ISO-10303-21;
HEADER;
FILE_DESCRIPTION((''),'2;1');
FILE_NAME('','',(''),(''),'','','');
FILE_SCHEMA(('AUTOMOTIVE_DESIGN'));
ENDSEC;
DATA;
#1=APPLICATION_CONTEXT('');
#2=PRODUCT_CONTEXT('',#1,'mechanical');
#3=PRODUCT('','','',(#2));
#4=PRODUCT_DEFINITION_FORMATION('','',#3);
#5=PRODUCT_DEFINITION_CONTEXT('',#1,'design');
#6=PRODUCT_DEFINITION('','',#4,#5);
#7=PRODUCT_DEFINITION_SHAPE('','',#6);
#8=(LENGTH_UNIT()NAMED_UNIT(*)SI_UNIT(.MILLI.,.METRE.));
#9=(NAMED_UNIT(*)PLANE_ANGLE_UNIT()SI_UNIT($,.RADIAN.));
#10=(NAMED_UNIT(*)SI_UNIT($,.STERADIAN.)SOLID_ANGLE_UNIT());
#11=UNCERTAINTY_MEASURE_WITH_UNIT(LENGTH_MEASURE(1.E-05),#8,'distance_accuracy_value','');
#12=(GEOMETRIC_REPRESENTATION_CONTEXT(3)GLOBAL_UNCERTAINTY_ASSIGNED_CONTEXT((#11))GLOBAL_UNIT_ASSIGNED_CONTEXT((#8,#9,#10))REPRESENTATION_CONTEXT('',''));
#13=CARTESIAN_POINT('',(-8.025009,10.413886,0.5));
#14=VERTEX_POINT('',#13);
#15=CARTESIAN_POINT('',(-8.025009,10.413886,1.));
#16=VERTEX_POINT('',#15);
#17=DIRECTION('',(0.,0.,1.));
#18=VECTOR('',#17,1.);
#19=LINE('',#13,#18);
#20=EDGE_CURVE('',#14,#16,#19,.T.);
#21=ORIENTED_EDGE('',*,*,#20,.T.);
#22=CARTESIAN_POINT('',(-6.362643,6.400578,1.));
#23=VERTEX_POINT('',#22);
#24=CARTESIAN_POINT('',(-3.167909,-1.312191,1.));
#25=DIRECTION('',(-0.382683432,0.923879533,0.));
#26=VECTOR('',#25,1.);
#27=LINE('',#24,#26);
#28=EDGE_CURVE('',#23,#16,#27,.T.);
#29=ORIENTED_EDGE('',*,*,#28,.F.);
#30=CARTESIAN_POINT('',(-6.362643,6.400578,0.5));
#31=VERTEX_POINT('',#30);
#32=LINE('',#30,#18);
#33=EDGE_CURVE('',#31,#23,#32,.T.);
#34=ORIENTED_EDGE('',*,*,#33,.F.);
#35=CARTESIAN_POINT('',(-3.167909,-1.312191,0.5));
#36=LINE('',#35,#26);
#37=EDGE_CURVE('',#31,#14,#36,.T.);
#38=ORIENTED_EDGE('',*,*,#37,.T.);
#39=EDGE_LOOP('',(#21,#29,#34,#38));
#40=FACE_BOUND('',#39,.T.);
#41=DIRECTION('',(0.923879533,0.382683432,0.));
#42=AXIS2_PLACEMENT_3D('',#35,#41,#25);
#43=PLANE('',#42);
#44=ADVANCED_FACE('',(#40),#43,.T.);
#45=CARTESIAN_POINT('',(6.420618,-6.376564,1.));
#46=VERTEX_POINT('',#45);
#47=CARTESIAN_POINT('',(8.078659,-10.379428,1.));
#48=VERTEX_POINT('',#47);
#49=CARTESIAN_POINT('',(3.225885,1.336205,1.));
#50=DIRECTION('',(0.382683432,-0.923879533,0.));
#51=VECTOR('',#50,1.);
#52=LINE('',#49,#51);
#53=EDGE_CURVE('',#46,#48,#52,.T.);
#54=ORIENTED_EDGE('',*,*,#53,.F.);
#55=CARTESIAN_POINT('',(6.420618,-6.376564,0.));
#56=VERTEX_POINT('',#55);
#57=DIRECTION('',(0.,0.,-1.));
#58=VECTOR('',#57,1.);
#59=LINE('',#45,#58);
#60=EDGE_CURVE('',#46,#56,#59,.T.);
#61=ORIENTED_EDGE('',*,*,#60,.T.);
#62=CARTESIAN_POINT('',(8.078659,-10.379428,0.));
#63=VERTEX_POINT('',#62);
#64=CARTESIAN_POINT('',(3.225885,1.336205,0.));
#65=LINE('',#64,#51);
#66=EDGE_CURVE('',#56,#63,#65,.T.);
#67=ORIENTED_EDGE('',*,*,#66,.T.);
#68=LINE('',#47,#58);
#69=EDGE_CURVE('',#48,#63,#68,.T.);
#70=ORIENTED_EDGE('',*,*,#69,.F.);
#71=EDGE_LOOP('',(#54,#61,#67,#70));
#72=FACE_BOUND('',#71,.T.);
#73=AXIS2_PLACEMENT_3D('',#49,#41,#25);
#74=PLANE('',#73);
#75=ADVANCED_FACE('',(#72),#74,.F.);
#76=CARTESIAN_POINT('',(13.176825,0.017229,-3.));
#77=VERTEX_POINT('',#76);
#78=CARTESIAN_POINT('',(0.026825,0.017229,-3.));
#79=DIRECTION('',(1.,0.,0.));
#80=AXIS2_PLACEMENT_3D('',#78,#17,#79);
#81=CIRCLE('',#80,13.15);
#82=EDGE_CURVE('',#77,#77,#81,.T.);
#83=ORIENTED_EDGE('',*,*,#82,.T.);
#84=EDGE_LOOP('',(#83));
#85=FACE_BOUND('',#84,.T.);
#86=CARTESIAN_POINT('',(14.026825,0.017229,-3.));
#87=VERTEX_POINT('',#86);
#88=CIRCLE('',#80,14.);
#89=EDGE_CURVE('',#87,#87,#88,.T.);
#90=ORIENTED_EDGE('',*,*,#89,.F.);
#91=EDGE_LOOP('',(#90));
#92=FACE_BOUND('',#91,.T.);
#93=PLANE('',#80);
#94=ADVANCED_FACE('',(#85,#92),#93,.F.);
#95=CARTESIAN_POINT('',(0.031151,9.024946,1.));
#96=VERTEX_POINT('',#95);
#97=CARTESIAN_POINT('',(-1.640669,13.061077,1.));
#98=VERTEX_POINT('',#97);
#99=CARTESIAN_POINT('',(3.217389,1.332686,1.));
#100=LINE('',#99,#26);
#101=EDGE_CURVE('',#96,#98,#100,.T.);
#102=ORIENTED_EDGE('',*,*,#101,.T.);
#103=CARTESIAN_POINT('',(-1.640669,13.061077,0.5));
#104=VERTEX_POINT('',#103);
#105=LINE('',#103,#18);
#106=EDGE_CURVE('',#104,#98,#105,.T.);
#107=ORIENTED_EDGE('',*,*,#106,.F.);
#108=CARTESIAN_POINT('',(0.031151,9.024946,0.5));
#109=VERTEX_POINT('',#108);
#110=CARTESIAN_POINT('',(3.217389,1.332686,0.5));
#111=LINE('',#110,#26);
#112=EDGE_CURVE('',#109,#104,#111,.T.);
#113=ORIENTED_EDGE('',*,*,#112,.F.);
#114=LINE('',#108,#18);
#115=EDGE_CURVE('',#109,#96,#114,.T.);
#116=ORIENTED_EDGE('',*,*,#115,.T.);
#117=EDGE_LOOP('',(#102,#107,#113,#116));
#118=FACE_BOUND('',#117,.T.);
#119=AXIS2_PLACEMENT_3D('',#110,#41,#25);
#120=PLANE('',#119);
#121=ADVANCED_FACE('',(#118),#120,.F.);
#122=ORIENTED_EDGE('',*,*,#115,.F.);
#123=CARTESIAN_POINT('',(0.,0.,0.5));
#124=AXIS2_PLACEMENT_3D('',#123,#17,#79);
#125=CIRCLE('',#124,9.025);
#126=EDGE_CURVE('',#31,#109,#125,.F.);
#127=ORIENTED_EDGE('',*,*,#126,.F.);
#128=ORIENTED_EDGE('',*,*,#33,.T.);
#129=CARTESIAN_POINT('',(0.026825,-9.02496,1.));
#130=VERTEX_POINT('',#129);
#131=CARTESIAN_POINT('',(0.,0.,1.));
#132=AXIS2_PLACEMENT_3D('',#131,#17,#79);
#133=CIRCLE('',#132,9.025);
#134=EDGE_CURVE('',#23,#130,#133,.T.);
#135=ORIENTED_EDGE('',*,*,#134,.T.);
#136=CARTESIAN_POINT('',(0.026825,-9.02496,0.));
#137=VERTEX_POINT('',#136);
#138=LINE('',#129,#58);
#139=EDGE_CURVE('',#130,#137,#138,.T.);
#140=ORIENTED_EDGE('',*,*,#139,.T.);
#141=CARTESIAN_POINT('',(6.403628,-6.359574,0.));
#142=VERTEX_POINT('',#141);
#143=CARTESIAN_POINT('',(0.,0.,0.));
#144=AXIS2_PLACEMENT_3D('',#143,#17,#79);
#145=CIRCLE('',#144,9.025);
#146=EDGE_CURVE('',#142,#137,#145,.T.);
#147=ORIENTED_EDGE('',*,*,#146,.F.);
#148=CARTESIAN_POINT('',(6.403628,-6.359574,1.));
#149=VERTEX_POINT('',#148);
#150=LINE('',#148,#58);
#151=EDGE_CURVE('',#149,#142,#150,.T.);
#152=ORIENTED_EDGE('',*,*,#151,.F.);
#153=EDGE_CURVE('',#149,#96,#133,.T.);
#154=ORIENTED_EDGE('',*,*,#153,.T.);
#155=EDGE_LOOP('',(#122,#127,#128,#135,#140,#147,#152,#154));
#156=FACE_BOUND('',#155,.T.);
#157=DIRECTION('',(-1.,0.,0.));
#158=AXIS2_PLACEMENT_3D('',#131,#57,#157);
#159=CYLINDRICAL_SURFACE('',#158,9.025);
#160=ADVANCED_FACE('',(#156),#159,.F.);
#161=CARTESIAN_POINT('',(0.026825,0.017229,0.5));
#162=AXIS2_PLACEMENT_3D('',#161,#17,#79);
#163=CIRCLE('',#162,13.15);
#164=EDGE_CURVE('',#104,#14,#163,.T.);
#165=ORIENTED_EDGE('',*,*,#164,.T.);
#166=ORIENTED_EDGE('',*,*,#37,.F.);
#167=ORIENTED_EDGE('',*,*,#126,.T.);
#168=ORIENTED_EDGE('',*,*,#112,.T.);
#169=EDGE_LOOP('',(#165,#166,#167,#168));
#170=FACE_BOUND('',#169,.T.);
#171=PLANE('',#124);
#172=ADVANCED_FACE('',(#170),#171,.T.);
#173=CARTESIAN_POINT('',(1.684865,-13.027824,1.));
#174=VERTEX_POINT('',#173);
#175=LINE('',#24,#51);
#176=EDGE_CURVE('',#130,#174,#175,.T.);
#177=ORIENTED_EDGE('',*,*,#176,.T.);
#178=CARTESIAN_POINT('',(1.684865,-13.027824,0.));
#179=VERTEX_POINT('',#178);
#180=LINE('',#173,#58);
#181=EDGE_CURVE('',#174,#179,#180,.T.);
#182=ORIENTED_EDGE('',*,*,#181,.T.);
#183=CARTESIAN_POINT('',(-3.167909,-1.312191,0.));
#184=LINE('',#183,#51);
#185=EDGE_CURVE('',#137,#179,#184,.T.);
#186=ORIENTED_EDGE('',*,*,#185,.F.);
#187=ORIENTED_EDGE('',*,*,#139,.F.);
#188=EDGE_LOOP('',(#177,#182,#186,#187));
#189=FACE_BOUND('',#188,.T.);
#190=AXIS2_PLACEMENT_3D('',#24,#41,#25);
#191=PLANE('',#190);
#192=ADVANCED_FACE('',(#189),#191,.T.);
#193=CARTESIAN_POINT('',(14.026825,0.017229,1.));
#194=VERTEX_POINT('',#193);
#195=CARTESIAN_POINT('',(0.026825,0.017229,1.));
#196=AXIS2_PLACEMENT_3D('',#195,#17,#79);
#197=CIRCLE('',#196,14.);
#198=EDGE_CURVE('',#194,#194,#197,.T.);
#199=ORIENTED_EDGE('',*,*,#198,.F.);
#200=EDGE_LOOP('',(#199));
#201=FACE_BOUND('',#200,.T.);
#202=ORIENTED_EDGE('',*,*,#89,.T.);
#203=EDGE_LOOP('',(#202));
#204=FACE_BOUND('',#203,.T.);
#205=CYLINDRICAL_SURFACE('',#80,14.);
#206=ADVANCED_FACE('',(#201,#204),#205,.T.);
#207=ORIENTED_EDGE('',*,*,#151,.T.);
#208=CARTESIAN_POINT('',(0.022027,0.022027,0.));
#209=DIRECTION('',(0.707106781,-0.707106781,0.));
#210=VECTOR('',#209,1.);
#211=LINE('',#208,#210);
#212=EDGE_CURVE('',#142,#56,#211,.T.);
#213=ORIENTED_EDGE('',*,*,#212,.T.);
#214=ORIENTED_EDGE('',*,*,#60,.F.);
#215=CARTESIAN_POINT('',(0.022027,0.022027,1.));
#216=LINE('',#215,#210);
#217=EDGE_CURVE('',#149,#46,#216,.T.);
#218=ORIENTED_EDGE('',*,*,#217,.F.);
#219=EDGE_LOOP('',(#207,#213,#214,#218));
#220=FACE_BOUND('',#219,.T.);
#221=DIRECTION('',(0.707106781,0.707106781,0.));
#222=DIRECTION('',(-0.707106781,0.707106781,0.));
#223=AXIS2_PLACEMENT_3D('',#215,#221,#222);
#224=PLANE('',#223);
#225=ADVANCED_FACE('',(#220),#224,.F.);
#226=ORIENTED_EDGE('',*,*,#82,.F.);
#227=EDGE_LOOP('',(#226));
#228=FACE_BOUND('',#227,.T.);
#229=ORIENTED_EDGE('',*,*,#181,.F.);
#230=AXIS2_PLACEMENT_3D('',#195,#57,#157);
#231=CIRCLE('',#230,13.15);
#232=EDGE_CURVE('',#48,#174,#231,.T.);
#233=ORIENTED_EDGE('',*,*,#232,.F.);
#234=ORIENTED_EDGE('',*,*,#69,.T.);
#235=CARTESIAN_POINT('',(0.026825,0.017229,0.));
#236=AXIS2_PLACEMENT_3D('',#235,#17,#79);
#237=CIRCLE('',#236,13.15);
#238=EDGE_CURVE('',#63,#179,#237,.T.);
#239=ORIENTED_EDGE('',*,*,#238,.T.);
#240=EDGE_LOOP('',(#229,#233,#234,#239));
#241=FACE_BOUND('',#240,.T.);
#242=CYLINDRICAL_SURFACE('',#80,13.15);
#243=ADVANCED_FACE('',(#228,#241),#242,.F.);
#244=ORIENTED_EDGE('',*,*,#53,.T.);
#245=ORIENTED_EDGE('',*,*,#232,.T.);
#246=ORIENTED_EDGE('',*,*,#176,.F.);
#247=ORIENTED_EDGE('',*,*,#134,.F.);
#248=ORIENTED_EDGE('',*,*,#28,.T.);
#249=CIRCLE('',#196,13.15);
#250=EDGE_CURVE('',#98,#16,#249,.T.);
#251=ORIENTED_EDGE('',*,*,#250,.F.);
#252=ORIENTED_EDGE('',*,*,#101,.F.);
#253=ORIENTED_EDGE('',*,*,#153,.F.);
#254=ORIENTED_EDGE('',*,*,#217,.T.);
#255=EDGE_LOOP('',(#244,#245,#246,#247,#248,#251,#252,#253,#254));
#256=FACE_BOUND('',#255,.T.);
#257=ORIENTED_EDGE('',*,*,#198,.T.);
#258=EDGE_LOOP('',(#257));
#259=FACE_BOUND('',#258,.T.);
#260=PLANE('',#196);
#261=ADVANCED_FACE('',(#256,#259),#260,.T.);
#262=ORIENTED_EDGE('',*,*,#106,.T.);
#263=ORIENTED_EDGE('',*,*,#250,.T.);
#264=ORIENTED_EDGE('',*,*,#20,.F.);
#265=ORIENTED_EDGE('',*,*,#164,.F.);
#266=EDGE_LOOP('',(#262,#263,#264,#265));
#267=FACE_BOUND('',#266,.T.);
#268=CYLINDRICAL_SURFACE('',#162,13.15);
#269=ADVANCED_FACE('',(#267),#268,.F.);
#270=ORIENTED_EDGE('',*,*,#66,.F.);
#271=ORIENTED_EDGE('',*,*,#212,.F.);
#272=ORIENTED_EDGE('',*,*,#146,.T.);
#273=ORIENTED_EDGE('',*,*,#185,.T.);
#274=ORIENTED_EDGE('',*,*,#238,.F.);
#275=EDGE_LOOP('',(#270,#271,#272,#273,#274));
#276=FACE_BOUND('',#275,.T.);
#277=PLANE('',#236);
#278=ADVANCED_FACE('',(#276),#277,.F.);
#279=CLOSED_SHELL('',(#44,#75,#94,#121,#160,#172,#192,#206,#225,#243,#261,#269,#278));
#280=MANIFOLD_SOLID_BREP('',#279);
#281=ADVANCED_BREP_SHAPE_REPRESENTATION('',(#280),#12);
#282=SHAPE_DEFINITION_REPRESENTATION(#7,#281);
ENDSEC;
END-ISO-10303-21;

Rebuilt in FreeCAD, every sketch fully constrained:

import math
import FreeCAD as App
import Part
import Sketcher

V = App.Vector
Q = App.Units.Quantity

doc = App.newDocument("Part")
body = doc.addObject("PartDesign::Body", "Body")

sketch1 = body.newObject("Sketcher::SketchObject", "Sketch")
sketch1.AttachmentSupport = (doc.getObject("XY_Plane"), [""])
sketch1.MapMode = "FlatFace"
sketch1.addGeometry([
    Part.Circle(V(0.026825, 0.017229, 0), V(0, 0, 1), 14),
    Part.Circle(V(0.026825, 0.017229, 0), V(0, 0, 1), 13.15),
], False)
sketch1.addConstraint([
    Sketcher.Constraint("Coincident", 1, 3, 0, 3),
    Sketcher.Constraint("Diameter", 0, 28.0),
    Sketcher.Constraint("Diameter", 1, 26.3),
    Sketcher.Constraint("DistanceY", -1, 1, 0, 3, 0.017229),
    Sketcher.Constraint("DistanceX", -1, 1, 0, 3, 0.026825),
])
pad1 = body.newObject("PartDesign::Pad", "Pad")
pad1.Profile = sketch1
pad1.Length = 3
pad1.Reversed = True

sketch2 = body.newObject("Sketcher::SketchObject", "Sketch001")
sketch2.AttachmentSupport = (doc.getObject("XY_Plane"), [""])
sketch2.MapMode = "FlatFace"
sketch2.AttachmentOffset = App.Placement(V(0, 0, 1), App.Rotation())
sketch2.addGeometry([
    Part.Circle(V(0.026825, 0.017229, 0), V(0, 0, 1), 14),
    Part.Circle(V(0, 0, 0), V(0, 0, 1), 9.025),
], False)
sketch2.addConstraint([
    Sketcher.Constraint("Coincident", 1, 3, -1, 1),
    Sketcher.Constraint("Diameter", 0, 28.0),
    Sketcher.Constraint("Diameter", 1, 18.05),
    Sketcher.Constraint("DistanceY", -1, 1, 0, 3, 0.017229),
    Sketcher.Constraint("DistanceX", -1, 1, 0, 3, 0.026825),
])
pad2 = body.newObject("PartDesign::Pad", "Pad001")
pad2.Profile = sketch2
pad2.Length = 1
pad2.Reversed = True

sketch3 = body.newObject("Sketcher::SketchObject", "Sketch002")
sketch3.AttachmentSupport = (doc.getObject("XY_Plane"), [""])
sketch3.MapMode = "FlatFace"
sketch3.addGeometry([
    Part.LineSegment(V(1.684865, -13.027824, 0), V(0.026825, -9.02496, 0)),
    Part.ArcOfCircle(Part.Circle(V(0, 0, 0), V(0, 0, 1), 9.025), math.radians(-89.829701), math.radians(-44.802236)),
    Part.LineSegment(V(6.403628, -6.359574, 0), V(6.420618, -6.376564, 0)),
    Part.LineSegment(V(6.420618, -6.376564, 0), V(8.078659, -10.379428, 0)),
    Part.ArcOfCircle(Part.Circle(V(0.026825, 0.017229, 0), V(0, 0, 1), 13.15), math.radians(-82.756483), math.radians(-52.243517)),
], False)
sketch3.addConstraint([
    Sketcher.Constraint("Coincident", 0, 2, 1, 1),
    Sketcher.Constraint("Coincident", 1, 2, 2, 1),
    Sketcher.Constraint("Coincident", 2, 2, 3, 1),
    Sketcher.Constraint("Coincident", 3, 2, 4, 2),
    Sketcher.Constraint("Coincident", 4, 1, 0, 1),
    Sketcher.Constraint("Coincident", 1, 3, -1, 1),
    Sketcher.Constraint("Parallel", 0, 3),
    Sketcher.Constraint("Vertical", 4, 3, 0, 2),
    Sketcher.Constraint("Equal", 0, 3),
    Sketcher.Constraint("Angle", 2, Q("-45 deg")),
    Sketcher.Constraint("Radius", 4, 13.15),
    Sketcher.Constraint("Angle", 0, Q("112.5 deg")),
    Sketcher.Constraint("Radius", 1, 9.025),
    Sketcher.Constraint("Distance", 0, 4.332668),
    Sketcher.Constraint("Distance", 2, 0.024028),
    Sketcher.Constraint("DistanceX", -1, 1, 2, 2, 6.420618),
])
pocket1 = body.newObject("PartDesign::Pocket", "Pocket")
pocket1.Profile = sketch3
pocket1.Type = "ThroughAll"
pocket1.Reversed = True

sketch4 = body.newObject("Sketcher::SketchObject", "Sketch003")
sketch4.AttachmentSupport = (doc.getObject("XY_Plane"), [""])
sketch4.MapMode = "FlatFace"
sketch4.AttachmentOffset = App.Placement(V(0, 0, 1), App.Rotation())
sketch4.addGeometry([
    Part.ArcOfCircle(Part.Circle(V(0, 0, 0), V(0, 0, 1), 9.025), math.radians(89.802236), math.radians(134.829701)),
    Part.LineSegment(V(0.031151, 9.024946, 0), V(-1.640669, 13.061077, 0)),
    Part.ArcOfCircle(Part.Circle(V(0.026825, 0.017229, 0), V(0, 0, 1), 13.15), math.radians(97.28504), math.radians(127.756483)),
    Part.LineSegment(V(-8.025009, 10.413886, 0), V(-6.362643, 6.400578, 0)),
], False)
sketch4.addConstraint([
    Sketcher.Constraint("Coincident", 0, 1, 1, 1),
    Sketcher.Constraint("Coincident", 1, 2, 2, 1),
    Sketcher.Constraint("Coincident", 2, 2, 3, 1),
    Sketcher.Constraint("Coincident", 3, 2, 0, 2),
    Sketcher.Constraint("Coincident", 0, 3, -1, 1),
    Sketcher.Constraint("Parallel", 1, 3),
    Sketcher.Constraint("Radius", 2, 13.15),
    Sketcher.Constraint("Angle", 1, Q("112.5 deg")),
    Sketcher.Constraint("Radius", 0, 9.025),
    Sketcher.Constraint("DistanceY", 3, 2, 1, 2, 6.660499),
    Sketcher.Constraint("DistanceY", -1, 1, 2, 3, 0.017229),
    Sketcher.Constraint("DistanceX", -1, 1, 0, 1, 0.031151),
    Sketcher.Constraint("DistanceX", 1, 2, -1, 1, 1.640669),
])
pocket2 = body.newObject("PartDesign::Pocket", "Pocket001")
pocket2.Profile = sketch4
pocket2.Length = 0.5

doc.recompute()
